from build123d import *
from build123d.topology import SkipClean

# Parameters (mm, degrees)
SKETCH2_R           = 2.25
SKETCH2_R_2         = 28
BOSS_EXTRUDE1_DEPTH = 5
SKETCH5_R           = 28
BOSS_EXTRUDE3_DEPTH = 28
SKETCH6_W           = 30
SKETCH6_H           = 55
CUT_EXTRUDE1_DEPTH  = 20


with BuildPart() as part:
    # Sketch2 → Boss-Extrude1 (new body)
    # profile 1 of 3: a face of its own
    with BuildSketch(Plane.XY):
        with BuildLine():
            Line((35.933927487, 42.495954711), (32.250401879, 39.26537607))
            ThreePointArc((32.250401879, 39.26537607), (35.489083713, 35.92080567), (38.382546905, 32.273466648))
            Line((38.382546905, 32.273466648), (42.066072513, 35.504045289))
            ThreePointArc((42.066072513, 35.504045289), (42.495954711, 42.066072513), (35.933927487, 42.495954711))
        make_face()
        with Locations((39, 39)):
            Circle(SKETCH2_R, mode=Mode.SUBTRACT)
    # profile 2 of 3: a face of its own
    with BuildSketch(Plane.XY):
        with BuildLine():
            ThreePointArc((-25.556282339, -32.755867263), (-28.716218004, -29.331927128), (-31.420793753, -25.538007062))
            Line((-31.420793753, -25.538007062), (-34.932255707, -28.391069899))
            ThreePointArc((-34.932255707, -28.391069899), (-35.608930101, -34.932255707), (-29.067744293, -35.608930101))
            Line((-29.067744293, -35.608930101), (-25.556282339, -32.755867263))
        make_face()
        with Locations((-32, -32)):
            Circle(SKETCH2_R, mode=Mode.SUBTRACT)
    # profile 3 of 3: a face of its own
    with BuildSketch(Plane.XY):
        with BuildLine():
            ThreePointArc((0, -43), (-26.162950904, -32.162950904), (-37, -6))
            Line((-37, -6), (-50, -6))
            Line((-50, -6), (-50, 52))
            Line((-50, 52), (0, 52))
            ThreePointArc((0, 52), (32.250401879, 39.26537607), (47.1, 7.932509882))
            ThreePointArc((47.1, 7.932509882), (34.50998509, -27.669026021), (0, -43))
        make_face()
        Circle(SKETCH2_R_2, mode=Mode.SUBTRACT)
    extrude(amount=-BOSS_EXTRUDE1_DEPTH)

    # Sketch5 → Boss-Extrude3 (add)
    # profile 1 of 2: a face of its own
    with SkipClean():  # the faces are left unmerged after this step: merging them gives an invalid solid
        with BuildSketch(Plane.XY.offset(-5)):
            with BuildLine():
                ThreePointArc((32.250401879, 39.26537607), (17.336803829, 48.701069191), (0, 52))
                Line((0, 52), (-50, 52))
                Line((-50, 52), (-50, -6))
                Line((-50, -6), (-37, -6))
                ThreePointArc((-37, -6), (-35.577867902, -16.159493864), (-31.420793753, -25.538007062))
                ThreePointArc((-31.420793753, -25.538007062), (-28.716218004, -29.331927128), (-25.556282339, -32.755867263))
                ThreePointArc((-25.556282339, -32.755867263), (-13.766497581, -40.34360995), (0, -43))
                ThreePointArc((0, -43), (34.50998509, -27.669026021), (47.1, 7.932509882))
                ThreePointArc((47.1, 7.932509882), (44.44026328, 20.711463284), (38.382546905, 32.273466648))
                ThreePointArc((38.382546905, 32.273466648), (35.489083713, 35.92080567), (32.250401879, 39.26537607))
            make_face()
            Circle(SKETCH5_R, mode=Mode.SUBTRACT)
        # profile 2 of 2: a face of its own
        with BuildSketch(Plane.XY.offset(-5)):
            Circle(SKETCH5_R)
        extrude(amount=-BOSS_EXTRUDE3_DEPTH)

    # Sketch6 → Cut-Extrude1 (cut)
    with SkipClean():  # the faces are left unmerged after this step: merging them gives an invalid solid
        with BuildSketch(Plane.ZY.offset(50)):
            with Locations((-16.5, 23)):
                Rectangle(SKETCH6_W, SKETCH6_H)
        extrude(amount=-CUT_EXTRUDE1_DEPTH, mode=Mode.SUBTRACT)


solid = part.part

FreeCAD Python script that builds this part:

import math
import FreeCAD as App
import Part
import Sketcher
Q = App.Units.Quantity


def add_polygon(sketch, points):
    """Adds a closed chain of lines whose ends are joined by coincident constraints."""
    first, n = sketch.GeometryCount, len(points)
    for a, b in zip(points, points[1:] + points[:1]):
        sketch.addGeometry(Part.LineSegment(App.Vector(*a, 0), App.Vector(*b, 0)), False)
    for i in range(n):
        sketch.addConstraint(Sketcher.Constraint("Coincident", first + i, 2, first + (i + 1) % n, 1))

doc = App.newDocument("Part")
body = doc.addObject("PartDesign::Body", "Body")

sketch1 = body.newObject("Sketcher::SketchObject", "Sketch")
sketch1.AttachmentSupport = (doc.getObject("XY_Plane"), [""])
sketch1.MapMode = "FlatFace"
sketch1.addGeometry([
    Part.LineSegment(App.Vector(35.9, 42.5, 0), App.Vector(32.3, 39.3, 0)),
    Part.ArcOfCircle(Part.Circle(App.Vector(0, 4.8, 0), App.Vector(0, 0, 1), 47.2), math.radians(47), math.radians(90)),
    Part.LineSegment(App.Vector(0, 52, 0), App.Vector(-50, 52, 0)),
    Part.LineSegment(App.Vector(-50, 52, 0), App.Vector(-50, -6, 0)),
    Part.LineSegment(App.Vector(-50, -6, 0), App.Vector(-37, -6, 0)),
    Part.ArcOfCircle(Part.Circle(App.Vector(0, -6, 0), App.Vector(0, 0, 1), 37), math.radians(180), math.radians(212)),
    Part.LineSegment(App.Vector(-31.4, -25.5, 0), App.Vector(-34.9, -28.4, 0)),
    Part.ArcOfCircle(Part.Circle(App.Vector(-32, -32, 0), App.Vector(0, 0, 1), 4.7), math.radians(129), math.radians(309)),
    Part.LineSegment(App.Vector(-29.1, -35.6, 0), App.Vector(-25.6, -32.8, 0)),
    Part.ArcOfCircle(Part.Circle(App.Vector(0, -6, 0), App.Vector(0, 0, 1), 37), math.radians(-134), math.radians(-90)),
    Part.ArcOfCircle(Part.Circle(App.Vector(-0.6, 4.8, 0), App.Vector(0, 0, 1), 47.8), math.radians(-89), math.radians(4)),
    Part.ArcOfCircle(Part.Circle(App.Vector(0, 4.8, 0), App.Vector(0, 0, 1), 47.2), math.radians(4), math.radians(36)),
    Part.LineSegment(App.Vector(38.4, 32.3, 0), App.Vector(42.1, 35.5, 0)),
    Part.ArcOfCircle(Part.Circle(App.Vector(39, 39, 0), App.Vector(0, 0, 1), 4.7), math.radians(-49), math.radians(131)),
    Part.Circle(App.Vector(39, 39, 0), App.Vector(0, 0, 1), 2.2),
    Part.Circle(App.Vector(0, 0, 0), App.Vector(0, 0, 1), 28),
    Part.Circle(App.Vector(-32, -32, 0), App.Vector(0, 0, 1), 2.2),
], False)
sketch1.addConstraint([
    Sketcher.Constraint("Coincident", 0, 2, 1, 1),
    Sketcher.Constraint("Tangent", 1, 2, 2, 1),
    Sketcher.Constraint("Coincident", 2, 2, 3, 1),
    Sketcher.Constraint("Coincident", 3, 2, 4, 1),
    Sketcher.Constraint("Coincident", 4, 2, 5, 1),
    Sketcher.Constraint("Coincident", 5, 2, 6, 1),
    Sketcher.Constraint("Tangent", 6, 2, 7, 1),
    Sketcher.Constraint("Tangent", 7, 2, 8, 1),
    Sketcher.Constraint("Coincident", 8, 2, 9, 1),
    Sketcher.Constraint("Coincident", 9, 2, 10, 1),
    Sketcher.Constraint("Tangent", 10, 2, 11, 1),
    Sketcher.Constraint("Coincident", 11, 2, 12, 1),
    Sketcher.Constraint("Tangent", 12, 2, 13, 1),
    Sketcher.Constraint("Tangent", 13, 2, 0, 1),
    Sketcher.Constraint("Horizontal", 2),
    Sketcher.Constraint("Vertical", 3),
    Sketcher.Constraint("Horizontal", 4),
    Sketcher.Constraint("Coincident", 15, 3, -1, 1),
    Sketcher.Constraint("Coincident", 9, 3, 5, 3),
    Sketcher.Constraint("Coincident", 11, 3, 1, 3),
    Sketcher.Constraint("Coincident", 14, 3, 13, 3),
    Sketcher.Constraint("Coincident", 16, 3, 7, 3),
    Sketcher.Constraint("Equal", 5, 9),
    Sketcher.Constraint("Equal", 1, 11),
    Sketcher.Constraint("Equal", 7, 13),
    Sketcher.Constraint("Equal", 14, 16),
    Sketcher.Constraint("PointOnObject", 1, 3, -2),
    Sketcher.Constraint("PointOnObject", 5, 3, -2),
    Sketcher.Constraint("PointOnObject", 9, 2, -2),
    Sketcher.Constraint("Parallel", 6, 8),
    Sketcher.Constraint("Parallel", 0, 12),
    Sketcher.Constraint("Horizontal", 9, 3, 3, 2),
    Sketcher.Constraint("Equal", 6, 8),
    Sketcher.Constraint("Equal", 0, 12),
    Sketcher.Constraint("Diameter", 15, Q("56 mm")),
    Sketcher.Constraint("Radius", 5, Q("37 mm")),
    Sketcher.Constraint("Diameter", 14, Q("4.5 mm")),
    Sketcher.Constraint("DistanceX", 2, 2, 2, 1, Q("50 mm")),
    Sketcher.Constraint("DistanceY", 3, 2, 3, 1, Q("58 mm")),
    Sketcher.Constraint("Radius", 7, Q("4.65 mm")),
    Sketcher.Constraint("DistanceY", 5, 3, -1, 1, Q("6 mm")),
    Sketcher.Constraint("DistanceX", 7, 3, -1, 1, Q("32 mm")),
    Sketcher.Constraint("DistanceY", 7, 3, -1, 1, Q("32 mm")),
    Sketcher.Constraint("DistanceX", -1, 1, 13, 3, Q("39 mm")),
    Sketcher.Constraint("DistanceY", -1, 1, 13, 3, Q("39 mm")),
    Sketcher.Constraint("DistanceX", -1, 1, 10, 2, Q("47.1 mm")),
    Sketcher.Constraint("Radius", 1, Q("47.204341 mm")),
])
pad1 = body.newObject("PartDesign::Pad", "Pad")
pad1.Profile = sketch1
pad1.Length = 5
pad1.Reversed = True

sketch2 = body.newObject("Sketcher::SketchObject", "Sketch001")
sketch2.AttachmentSupport = (doc.getObject("XY_Plane"), [""])
sketch2.MapMode = "FlatFace"
sketch2.AttachmentOffset = App.Placement(App.Vector(0, 0, -5), App.Rotation())
sketch2.addGeometry([
    Part.ArcOfCircle(Part.Circle(App.Vector(0, 5, 0), App.Vector(0, 0, 1), 47), math.radians(47), math.radians(90)),
    Part.LineSegment(App.Vector(0, 52, 0), App.Vector(-50, 52, 0)),
    Part.LineSegment(App.Vector(-50, 52, 0), App.Vector(-50, -6, 0)),
    Part.LineSegment(App.Vector(-50, -6, 0), App.Vector(-37, -6, 0)),
    Part.ArcOfCircle(Part.Circle(App.Vector(0, -6, 0), App.Vector(0, 0, 1), 37), math.radians(180), math.radians(212)),
    Part.ArcOfCircle(Part.Circle(App.Vector(0, -6, 0), App.Vector(0, 0, 1), 37), math.radians(-148.13), math.radians(-133.69)),
    Part.ArcOfCircle(Part.Circle(App.Vector(0, -6, 0), App.Vector(0, 0, 1), 37), math.radians(-134), math.radians(-90)),
    Part.ArcOfCircle(Part.Circle(App.Vector(-1, 5, 0), App.Vector(0, 0, 1), 48), math.radians(-89), math.radians(4)),
    Part.ArcOfCircle(Part.Circle(App.Vector(0, 5, 0), App.Vector(0, 0, 1), 47), math.radians(4), math.radians(36)),
    Part.ArcOfCircle(Part.Circle(App.Vector(0, 5, 0), App.Vector(0, 0, 1), 47), math.radians(35.6), math.radians(46.91)),
], False)
sketch2.addConstraint([
    Sketcher.Constraint("Tangent", 0, 2, 1, 1),
    Sketcher.Constraint("Coincident", 1, 2, 2, 1),
    Sketcher.Constraint("Coincident", 2, 2, 3, 1),
    Sketcher.Constraint("Coincident", 3, 2, 4, 1),
    Sketcher.Constraint("Tangent", 4, 2, 5, 1),
    Sketcher.Constraint("Tangent", 5, 2, 6, 1),
    Sketcher.Constraint("Coincident", 6, 2, 7, 1),
    Sketcher.Constraint("Tangent", 7, 2, 8, 1),
    Sketcher.Constraint("Tangent", 8, 2, 9, 1),
    Sketcher.Constraint("Tangent", 9, 2, 0, 1),
    Sketcher.Constraint("Horizontal", 1),
    Sketcher.Constraint("Vertical", 2),
    Sketcher.Constraint("Horizontal", 3),
    Sketcher.Constraint("Coincident", 6, 3, 4, 3),
    Sketcher.Constraint("Coincident", 8, 3, 0, 3),
    Sketcher.Constraint("PointOnObject", 0, 3, -2),
    Sketcher.Constraint("PointOnObject", 4, 3, -2),
    Sketcher.Constraint("PointOnObject", 6, 2, -2),
    Sketcher.Constraint("Horizontal", 6, 3, 2, 2),
    Sketcher.Constraint("Radius", 4, Q("37 mm")),
    Sketcher.Constraint("DistanceX", 1, 2, 1, 1, Q("50 mm")),
    Sketcher.Constraint("DistanceY", 2, 2, 2, 1, Q("58 mm")),
    Sketcher.Constraint("DistanceY", 4, 3, -1, 1, Q("6 mm")),
    Sketcher.Constraint("DistanceX", -1, 1, 7, 2, Q("47.1 mm")),
    Sketcher.Constraint("Radius", 0, Q("47.204341 mm")),
    Sketcher.Constraint("DistanceX", -1, 1, 9, 2, Q("32.250402 mm")),
    Sketcher.Constraint("DistanceX", 4, 2, 5, 2, Q("5.864511 mm")),
    Sketcher.Constraint("DistanceY", 5, 2, 4, 2, Q("7.21786 mm")),
    Sketcher.Constraint("DistanceY", 8, 2, 9, 2, Q("6.991909 mm")),
])
pad2 = body.newObject("PartDesign::Pad", "Pad001")
pad2.Profile = sketch2
pad2.Length = 28
pad2.Reversed = True

sketch3 = body.newObject("Sketcher::SketchObject", "Sketch002")
sketch3.AttachmentSupport = (doc.getObject("YZ_Plane"), [""])
sketch3.MapMode = "FlatFace"
sketch3.AttachmentOffset = App.Placement(App.Vector(0, 0, -50), App.Rotation())
add_polygon(sketch3, [(50, -32), (-4, -32), (-4, -2), (50, -2)])
sketch3.addConstraint([
    Sketcher.Constraint("Horizontal", 0),
    Sketcher.Constraint("Vertical", 1),
    Sketcher.Constraint("Horizontal", 2),
    Sketcher.Constraint("Vertical", 3),
    Sketcher.Constraint("DistanceX", 0, 2, 0, 1, Q("55 mm")),
    Sketcher.Constraint("DistanceY", 1, 1, 1, 2, Q("30 mm")),
    Sketcher.Constraint("DistanceX", 0, 2, -1, 1, Q("4.5 mm")),
    Sketcher.Constraint("DistanceY", 0, 2, -1, 1, Q("31.5 mm")),
])
pocket1 = body.newObject("PartDesign::Pocket", "Pocket")
pocket1.Profile = sketch3
pocket1.Length = 20
pocket1.Reversed = True

doc.recompute()
